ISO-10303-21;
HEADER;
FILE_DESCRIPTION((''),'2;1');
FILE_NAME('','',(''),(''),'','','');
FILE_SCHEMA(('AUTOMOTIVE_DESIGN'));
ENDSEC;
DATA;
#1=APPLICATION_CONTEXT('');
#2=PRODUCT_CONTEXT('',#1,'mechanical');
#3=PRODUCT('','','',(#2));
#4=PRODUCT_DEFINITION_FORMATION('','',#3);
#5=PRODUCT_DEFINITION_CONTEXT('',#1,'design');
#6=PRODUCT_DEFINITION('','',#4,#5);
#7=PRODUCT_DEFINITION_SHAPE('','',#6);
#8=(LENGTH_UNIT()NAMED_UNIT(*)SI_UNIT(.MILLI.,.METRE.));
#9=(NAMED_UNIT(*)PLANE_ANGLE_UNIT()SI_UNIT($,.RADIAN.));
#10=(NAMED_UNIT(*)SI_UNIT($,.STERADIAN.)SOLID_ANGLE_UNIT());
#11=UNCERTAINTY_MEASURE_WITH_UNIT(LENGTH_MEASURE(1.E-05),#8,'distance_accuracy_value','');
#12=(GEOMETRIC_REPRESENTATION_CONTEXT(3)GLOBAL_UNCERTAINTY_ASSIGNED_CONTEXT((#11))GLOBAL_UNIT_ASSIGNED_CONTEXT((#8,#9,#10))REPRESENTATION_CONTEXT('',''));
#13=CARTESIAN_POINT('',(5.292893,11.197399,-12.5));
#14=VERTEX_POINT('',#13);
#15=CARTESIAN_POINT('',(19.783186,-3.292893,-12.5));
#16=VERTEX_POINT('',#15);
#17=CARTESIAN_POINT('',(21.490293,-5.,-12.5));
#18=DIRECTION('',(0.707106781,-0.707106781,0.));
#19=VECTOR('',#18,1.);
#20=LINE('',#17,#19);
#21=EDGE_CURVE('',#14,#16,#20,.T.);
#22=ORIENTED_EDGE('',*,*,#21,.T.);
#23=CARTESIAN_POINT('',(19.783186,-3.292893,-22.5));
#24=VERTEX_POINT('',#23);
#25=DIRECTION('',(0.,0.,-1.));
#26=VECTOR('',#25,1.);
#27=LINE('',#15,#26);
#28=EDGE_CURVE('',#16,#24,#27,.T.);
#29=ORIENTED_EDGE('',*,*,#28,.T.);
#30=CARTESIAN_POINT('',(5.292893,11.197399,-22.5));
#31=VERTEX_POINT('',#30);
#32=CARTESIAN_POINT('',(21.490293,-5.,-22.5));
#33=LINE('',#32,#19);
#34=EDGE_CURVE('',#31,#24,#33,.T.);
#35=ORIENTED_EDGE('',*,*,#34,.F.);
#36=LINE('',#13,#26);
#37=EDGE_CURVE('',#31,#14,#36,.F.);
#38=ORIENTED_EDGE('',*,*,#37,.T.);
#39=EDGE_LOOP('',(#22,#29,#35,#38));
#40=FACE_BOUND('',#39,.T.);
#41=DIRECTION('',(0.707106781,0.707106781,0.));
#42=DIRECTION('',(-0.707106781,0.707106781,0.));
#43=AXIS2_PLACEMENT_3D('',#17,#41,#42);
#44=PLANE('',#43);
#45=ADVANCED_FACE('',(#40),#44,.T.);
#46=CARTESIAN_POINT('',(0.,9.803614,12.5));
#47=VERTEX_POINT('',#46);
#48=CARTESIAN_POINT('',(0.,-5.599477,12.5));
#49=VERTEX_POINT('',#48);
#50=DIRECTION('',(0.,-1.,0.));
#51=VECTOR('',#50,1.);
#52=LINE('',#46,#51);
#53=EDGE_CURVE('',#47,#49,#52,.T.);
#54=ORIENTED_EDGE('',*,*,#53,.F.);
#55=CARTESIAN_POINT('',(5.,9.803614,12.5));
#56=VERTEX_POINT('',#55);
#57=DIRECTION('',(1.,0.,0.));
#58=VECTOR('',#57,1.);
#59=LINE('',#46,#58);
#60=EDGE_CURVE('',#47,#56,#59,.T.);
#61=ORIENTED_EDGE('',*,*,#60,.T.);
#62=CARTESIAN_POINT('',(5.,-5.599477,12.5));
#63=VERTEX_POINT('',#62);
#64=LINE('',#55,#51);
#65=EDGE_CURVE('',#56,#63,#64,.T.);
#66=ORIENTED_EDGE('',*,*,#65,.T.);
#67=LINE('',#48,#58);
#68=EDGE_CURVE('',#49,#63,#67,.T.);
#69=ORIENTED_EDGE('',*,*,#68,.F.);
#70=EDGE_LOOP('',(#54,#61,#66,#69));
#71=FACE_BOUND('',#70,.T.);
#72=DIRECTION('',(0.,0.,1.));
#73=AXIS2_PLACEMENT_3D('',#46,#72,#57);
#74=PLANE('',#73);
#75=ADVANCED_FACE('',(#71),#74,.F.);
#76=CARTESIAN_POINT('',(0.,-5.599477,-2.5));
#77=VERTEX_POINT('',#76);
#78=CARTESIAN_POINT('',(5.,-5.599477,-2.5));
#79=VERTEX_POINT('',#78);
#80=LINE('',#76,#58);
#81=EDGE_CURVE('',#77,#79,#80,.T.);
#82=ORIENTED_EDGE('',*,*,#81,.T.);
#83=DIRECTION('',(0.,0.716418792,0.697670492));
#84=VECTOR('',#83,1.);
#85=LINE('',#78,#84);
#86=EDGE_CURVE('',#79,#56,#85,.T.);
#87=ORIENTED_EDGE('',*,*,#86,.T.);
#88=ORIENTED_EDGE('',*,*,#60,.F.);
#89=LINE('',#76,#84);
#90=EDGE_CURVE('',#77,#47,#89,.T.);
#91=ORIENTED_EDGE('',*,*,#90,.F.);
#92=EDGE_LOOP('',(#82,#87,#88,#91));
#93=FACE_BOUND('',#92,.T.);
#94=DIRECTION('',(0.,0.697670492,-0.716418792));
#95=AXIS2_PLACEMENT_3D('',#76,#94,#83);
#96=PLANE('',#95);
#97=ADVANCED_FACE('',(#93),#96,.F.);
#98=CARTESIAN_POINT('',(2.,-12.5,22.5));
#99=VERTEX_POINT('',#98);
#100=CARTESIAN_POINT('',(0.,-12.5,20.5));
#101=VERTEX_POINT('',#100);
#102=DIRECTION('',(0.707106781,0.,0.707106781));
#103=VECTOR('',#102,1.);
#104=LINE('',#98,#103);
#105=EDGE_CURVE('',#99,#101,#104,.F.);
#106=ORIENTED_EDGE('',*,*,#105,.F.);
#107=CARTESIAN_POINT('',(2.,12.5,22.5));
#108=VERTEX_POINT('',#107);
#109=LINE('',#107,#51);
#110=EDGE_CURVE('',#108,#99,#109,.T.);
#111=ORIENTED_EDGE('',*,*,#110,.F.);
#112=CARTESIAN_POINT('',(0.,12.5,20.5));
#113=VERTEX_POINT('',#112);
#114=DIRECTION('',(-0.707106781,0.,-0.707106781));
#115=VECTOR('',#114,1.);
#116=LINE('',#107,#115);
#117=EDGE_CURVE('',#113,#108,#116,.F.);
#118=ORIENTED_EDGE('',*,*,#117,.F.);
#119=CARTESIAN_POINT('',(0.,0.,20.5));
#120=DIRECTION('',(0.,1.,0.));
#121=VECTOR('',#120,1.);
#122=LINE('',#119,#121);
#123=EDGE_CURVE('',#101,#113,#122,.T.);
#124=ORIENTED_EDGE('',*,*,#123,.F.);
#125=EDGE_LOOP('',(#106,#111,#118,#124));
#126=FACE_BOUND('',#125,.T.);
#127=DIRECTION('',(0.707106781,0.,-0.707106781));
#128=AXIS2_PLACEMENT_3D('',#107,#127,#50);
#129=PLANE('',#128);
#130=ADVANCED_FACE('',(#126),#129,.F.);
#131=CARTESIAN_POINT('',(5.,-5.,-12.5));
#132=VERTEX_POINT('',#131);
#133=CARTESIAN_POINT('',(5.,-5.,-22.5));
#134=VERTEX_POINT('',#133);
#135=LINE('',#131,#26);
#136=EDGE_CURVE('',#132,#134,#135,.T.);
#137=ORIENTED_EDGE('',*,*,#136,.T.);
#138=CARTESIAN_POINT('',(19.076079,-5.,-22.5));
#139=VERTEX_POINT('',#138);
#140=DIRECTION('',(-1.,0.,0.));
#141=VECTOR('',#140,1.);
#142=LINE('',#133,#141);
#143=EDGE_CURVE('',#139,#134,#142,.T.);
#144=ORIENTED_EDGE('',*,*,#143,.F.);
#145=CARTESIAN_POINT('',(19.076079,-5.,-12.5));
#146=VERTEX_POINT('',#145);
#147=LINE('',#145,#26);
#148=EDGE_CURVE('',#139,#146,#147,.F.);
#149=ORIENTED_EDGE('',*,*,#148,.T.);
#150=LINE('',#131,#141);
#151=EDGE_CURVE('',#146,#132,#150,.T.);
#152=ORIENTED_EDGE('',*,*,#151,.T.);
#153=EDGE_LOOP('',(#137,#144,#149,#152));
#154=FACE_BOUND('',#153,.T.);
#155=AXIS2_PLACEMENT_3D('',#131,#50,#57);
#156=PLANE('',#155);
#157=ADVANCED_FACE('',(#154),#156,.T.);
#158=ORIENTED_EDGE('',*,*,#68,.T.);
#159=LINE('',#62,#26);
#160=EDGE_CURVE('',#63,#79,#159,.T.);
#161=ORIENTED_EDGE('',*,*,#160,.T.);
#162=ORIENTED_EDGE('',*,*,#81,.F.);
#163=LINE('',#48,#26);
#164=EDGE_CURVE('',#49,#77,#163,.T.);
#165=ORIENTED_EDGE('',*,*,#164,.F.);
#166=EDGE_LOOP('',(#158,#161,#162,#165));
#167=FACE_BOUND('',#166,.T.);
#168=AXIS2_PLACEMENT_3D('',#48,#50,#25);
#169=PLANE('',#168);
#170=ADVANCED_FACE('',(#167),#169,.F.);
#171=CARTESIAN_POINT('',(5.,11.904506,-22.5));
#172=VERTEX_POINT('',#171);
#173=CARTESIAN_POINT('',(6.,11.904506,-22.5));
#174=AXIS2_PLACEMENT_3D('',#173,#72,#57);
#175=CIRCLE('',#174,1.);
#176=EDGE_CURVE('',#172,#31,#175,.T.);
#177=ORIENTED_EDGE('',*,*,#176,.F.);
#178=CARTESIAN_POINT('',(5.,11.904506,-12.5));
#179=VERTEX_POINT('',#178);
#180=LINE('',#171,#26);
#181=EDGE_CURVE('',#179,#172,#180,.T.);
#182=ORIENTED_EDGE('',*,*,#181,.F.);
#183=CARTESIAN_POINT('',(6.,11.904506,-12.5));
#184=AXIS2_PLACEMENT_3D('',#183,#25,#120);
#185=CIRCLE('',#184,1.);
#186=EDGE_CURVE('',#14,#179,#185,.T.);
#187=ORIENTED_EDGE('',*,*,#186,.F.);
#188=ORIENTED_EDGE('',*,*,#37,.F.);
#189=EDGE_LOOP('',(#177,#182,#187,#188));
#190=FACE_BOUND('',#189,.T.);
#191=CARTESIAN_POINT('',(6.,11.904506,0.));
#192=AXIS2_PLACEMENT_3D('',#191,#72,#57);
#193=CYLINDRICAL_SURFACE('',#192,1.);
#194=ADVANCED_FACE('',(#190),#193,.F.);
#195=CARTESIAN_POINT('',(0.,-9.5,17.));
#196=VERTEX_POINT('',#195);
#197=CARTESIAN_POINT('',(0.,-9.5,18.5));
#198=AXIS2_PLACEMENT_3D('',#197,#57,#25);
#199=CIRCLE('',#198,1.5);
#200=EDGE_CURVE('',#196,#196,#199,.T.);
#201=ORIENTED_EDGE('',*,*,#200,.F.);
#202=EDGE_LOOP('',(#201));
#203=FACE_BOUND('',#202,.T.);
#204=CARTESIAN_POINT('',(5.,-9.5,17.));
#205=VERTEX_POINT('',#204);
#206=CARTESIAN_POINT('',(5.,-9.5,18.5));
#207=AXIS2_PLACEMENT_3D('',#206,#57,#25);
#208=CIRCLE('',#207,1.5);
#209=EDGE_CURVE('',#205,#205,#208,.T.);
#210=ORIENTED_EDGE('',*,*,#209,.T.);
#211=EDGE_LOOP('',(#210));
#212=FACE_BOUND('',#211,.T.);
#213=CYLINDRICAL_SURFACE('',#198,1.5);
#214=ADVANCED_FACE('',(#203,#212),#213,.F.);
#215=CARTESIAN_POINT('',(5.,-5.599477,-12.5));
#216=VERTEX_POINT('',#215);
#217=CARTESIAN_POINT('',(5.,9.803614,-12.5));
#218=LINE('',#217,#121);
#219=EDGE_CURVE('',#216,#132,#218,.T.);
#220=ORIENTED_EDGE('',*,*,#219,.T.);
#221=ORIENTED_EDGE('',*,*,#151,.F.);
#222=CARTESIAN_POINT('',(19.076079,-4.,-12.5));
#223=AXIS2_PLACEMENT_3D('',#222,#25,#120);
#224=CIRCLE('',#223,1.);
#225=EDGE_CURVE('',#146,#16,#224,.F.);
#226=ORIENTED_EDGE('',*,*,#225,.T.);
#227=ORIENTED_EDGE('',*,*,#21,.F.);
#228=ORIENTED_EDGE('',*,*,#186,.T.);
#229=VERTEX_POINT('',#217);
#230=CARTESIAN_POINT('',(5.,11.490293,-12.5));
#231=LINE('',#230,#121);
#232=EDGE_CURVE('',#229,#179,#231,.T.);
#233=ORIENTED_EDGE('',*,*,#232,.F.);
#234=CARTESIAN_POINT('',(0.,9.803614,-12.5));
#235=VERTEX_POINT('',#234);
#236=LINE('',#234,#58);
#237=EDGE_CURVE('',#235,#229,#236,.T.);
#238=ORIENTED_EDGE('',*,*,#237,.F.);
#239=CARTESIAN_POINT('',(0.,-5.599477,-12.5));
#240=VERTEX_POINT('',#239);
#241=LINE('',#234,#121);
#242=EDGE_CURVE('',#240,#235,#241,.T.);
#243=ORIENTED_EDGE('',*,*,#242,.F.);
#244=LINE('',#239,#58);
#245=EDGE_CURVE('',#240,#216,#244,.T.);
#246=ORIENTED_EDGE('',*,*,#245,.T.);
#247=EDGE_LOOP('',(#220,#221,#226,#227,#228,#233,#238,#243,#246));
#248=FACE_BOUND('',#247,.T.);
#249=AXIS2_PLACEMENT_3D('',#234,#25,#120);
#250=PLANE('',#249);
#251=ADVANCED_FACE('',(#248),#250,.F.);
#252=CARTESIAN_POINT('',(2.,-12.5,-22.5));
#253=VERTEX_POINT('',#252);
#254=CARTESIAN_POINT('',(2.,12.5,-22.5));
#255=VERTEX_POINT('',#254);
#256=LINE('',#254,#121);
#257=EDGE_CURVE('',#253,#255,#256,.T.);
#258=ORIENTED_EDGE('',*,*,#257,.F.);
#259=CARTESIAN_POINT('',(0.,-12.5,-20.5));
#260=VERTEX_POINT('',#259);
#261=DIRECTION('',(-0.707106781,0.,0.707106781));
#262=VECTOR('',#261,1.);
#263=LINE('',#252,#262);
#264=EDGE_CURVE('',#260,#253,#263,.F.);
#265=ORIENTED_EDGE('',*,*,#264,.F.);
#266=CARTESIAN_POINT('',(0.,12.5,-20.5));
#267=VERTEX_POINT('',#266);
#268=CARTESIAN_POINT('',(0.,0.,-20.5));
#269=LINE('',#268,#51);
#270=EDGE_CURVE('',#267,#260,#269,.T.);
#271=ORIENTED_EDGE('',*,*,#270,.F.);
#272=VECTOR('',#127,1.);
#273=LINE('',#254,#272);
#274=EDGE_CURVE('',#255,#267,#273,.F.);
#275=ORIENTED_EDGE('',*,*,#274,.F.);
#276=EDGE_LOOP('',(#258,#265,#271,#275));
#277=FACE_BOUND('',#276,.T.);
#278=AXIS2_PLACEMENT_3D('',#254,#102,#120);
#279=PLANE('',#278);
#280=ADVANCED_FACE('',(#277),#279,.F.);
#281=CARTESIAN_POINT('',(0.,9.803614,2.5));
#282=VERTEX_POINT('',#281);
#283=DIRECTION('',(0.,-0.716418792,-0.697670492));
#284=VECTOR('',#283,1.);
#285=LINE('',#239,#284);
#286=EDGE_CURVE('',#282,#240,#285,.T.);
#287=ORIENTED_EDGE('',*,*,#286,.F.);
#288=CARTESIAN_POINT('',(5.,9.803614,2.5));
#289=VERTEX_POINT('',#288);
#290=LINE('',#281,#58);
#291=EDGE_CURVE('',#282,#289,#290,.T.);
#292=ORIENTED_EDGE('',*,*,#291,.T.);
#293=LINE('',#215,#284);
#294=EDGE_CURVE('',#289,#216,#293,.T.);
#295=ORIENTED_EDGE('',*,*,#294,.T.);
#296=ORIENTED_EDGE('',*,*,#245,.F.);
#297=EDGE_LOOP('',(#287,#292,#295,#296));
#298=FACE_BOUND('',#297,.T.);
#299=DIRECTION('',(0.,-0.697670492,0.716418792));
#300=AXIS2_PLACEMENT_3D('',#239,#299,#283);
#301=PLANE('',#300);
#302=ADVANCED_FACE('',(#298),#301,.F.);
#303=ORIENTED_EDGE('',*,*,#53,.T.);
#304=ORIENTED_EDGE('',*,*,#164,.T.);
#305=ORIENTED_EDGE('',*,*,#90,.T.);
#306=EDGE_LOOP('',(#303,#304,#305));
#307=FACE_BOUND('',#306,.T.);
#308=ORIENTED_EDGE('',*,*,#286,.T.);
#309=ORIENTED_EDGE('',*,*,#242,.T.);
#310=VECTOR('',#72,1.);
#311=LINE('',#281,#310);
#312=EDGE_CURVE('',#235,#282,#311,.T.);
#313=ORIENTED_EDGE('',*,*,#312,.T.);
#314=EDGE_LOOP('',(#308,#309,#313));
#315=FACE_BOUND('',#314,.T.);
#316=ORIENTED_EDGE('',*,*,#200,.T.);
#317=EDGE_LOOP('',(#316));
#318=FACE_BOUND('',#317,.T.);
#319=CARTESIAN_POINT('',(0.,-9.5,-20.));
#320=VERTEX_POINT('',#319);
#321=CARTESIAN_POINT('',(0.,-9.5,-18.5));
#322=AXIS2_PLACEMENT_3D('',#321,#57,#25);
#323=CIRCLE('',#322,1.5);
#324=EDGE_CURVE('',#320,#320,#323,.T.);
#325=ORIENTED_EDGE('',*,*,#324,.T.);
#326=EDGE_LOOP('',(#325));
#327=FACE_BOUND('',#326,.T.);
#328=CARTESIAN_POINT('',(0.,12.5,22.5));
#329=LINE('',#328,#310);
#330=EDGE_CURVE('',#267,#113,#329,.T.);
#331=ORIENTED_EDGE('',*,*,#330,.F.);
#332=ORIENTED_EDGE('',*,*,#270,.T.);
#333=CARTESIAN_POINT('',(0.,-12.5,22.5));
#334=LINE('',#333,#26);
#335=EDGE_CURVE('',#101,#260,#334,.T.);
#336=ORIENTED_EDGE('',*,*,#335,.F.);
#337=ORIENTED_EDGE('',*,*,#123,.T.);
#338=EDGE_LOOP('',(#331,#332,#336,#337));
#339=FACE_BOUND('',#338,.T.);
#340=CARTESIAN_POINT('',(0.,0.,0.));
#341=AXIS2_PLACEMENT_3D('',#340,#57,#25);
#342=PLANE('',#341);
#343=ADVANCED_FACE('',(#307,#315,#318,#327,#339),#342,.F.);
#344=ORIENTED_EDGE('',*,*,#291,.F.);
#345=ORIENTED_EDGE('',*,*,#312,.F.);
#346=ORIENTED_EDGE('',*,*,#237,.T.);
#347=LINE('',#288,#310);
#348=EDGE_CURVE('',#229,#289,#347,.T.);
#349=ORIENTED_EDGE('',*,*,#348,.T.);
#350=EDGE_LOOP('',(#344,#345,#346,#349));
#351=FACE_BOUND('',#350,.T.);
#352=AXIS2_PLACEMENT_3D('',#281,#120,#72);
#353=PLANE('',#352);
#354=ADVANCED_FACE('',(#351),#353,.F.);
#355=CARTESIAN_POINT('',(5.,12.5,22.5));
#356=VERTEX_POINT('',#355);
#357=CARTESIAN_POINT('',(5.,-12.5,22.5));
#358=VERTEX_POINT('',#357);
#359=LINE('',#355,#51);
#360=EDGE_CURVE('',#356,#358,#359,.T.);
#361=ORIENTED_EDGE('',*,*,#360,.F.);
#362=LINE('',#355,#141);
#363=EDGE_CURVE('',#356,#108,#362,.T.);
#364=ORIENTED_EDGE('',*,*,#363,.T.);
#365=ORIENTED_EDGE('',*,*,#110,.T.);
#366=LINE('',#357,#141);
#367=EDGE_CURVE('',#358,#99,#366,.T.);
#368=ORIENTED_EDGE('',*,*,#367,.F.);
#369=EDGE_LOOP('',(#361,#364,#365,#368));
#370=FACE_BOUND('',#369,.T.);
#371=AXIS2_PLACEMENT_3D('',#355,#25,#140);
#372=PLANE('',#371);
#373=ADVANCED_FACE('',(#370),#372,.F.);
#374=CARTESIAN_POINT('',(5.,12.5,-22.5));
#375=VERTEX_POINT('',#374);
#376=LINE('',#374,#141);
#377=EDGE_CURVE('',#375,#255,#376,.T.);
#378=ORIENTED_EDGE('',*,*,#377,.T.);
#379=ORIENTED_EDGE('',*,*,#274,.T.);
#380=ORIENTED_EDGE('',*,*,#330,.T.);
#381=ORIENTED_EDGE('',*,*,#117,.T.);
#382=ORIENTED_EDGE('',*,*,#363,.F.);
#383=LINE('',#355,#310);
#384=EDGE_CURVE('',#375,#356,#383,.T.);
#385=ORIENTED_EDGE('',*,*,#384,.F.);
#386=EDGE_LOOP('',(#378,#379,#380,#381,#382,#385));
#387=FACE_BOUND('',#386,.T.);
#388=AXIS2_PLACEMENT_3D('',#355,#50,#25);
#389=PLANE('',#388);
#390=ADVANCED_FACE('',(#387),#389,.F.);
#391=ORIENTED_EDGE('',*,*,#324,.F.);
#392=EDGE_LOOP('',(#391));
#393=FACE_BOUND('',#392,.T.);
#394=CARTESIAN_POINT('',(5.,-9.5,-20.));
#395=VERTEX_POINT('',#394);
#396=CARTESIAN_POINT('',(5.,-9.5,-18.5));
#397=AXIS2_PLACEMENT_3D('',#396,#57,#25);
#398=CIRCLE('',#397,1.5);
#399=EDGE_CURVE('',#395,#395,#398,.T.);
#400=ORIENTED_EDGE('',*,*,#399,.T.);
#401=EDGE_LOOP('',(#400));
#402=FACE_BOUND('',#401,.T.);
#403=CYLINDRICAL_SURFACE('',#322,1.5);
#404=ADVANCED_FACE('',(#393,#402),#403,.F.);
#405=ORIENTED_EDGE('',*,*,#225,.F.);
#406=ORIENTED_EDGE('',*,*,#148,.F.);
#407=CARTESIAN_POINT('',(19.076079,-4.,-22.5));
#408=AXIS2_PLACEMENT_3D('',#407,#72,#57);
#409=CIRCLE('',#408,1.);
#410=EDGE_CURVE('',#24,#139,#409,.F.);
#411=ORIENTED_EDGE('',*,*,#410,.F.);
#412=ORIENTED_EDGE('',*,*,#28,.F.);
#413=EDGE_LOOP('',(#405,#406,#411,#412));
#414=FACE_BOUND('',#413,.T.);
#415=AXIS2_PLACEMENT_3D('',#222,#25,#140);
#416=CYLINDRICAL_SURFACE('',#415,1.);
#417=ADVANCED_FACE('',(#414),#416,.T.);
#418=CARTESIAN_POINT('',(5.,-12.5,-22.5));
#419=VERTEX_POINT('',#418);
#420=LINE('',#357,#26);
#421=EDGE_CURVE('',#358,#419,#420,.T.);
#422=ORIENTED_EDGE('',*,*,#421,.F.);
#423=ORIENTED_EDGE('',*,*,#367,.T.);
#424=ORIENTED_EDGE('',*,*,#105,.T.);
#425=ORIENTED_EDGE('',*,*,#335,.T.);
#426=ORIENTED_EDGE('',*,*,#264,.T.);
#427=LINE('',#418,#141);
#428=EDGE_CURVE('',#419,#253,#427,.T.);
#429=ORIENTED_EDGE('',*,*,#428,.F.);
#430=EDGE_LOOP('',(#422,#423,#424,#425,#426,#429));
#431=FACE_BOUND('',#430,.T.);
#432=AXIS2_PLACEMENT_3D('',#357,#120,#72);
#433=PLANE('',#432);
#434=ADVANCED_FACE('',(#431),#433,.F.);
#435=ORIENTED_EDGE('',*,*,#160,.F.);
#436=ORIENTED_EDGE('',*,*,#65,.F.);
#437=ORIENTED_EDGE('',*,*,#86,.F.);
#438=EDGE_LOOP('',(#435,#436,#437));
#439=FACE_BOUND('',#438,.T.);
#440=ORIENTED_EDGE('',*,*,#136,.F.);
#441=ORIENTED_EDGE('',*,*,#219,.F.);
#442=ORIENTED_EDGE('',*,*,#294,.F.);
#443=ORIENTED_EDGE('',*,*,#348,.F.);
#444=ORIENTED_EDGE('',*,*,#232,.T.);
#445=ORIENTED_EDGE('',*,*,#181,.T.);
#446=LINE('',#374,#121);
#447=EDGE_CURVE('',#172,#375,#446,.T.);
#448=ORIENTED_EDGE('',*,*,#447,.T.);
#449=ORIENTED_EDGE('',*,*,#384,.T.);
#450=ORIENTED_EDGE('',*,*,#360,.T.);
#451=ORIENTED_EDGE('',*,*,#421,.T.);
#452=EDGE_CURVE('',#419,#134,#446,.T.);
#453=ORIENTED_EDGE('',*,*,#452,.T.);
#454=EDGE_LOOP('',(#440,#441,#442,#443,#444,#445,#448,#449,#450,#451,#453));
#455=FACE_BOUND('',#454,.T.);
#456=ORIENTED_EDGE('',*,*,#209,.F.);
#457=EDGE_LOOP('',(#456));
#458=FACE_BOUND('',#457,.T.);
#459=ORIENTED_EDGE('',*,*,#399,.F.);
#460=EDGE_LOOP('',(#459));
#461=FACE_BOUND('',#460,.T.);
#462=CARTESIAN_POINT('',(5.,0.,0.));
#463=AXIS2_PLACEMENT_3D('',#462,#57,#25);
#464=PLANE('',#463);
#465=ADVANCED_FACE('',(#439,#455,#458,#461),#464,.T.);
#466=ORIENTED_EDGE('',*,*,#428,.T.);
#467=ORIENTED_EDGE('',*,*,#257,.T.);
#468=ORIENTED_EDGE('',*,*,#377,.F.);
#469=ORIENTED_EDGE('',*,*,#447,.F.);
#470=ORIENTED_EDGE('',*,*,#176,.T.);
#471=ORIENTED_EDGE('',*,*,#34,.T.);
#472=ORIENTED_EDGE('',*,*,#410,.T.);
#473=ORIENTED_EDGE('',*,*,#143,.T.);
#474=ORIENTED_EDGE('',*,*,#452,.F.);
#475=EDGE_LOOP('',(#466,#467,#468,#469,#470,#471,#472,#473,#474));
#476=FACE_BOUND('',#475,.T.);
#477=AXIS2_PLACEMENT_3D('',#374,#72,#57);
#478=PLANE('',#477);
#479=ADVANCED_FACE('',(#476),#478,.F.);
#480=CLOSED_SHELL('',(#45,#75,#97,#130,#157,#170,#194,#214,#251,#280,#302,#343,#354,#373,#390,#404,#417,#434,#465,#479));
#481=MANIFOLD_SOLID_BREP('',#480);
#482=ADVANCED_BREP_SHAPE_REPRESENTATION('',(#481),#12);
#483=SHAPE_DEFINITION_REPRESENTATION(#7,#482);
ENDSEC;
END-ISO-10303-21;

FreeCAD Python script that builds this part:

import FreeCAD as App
import Part
import Sketcher
from FreeCAD import Vector


def edges_at(feature, points):
    """Names of the edges that pass closest to the given points."""
    edges = feature.Shape.Edges
    near = lambda p: min(range(len(edges)), key=lambda i: edges[i].distToShape(Part.Vertex(*p))[0])
    return sorted({f"Edge{near(p) + 1}" for p in points})


def add_polygon(sketch, points):
    """Adds a closed chain of lines whose ends are joined by coincident constraints."""
    first, n = sketch.GeometryCount, len(points)
    for a, b in zip(points, points[1:] + points[:1]):
        sketch.addGeometry(Part.LineSegment(App.Vector(*a, 0), App.Vector(*b, 0)), False)
    for i in range(n):
        sketch.addConstraint(Sketcher.Constraint("Coincident", first + i, 2, first + (i + 1) % n, 1))

doc = App.newDocument("Part")
body = doc.addObject("PartDesign::Body", "Body")

sketch1 = body.newObject("Sketcher::SketchObject", "Sketch")
sketch1.AttachmentSupport = (doc.getObject("YZ_Plane"), [""])
sketch1.MapMode = "FlatFace"
add_polygon(sketch1, [(12, 22), (-12, 22), (-12, -22), (12, -22)])
sketch1.addConstraint(Sketcher.Constraint("Horizontal", 0))
sketch1.addConstraint(Sketcher.Constraint("Vertical", 1))
sketch1.addConstraint(Sketcher.Constraint("Horizontal", 2))
sketch1.addConstraint(Sketcher.Constraint("Vertical", 3))
sketch1.addConstraint(Sketcher.Constraint("Symmetric", 0, 2, 2, 2, -1, 1))
sketch1.addConstraint(Sketcher.Constraint("DistanceX", 0, 2, 0, 1, 25.0))
sketch1.addConstraint(Sketcher.Constraint("DistanceY", 1, 2, 1, 1, 45.0))
pad1 = body.newObject("PartDesign::Pad", "Pad")
pad1.Profile = sketch1
pad1.Length = 5

sketch2 = body.newObject("Sketcher::SketchObject", "Sketch001")
sketch2.AttachmentSupport = (doc.getObject("YZ_Plane"), [""])
sketch2.MapMode = "FlatFace"
sketch2.AttachmentOffset = App.Placement(Vector(0, 0, 5), App.Rotation())
sketch2.addGeometry(Part.Circle(Vector(-9.5, 18.5, 0), Vector(0, 0, 1), 1.5), False)
sketch2.addGeometry(Part.Circle(Vector(-9.5, -18.5, 0), Vector(0, 0, 1), 1.5), False)
sketch2.addConstraint(Sketcher.Constraint("Equal", 0, 1))
sketch2.addConstraint(Sketcher.Constraint("Symmetric", 0, 3, 1, 3, -1))
sketch2.addConstraint(Sketcher.Constraint("Diameter", 0, 3.0))
sketch2.addConstraint(Sketcher.Constraint("DistanceY", 1, 3, 0, 3, 37.0))
sketch2.addConstraint(Sketcher.Constraint("DistanceX", 0, 3, -1, 1, 9.5))
pocket1 = body.newObject("PartDesign::Pocket", "Pocket")
pocket1.Profile = sketch2
pocket1.Type = "ThroughAll"

sketch3 = body.newObject("Sketcher::SketchObject", "Sketch002")
sketch3.AttachmentSupport = (doc.getObject("YZ_Plane"), [""])
sketch3.MapMode = "FlatFace"
sketch3.AttachmentOffset = App.Placement(Vector(0, 0, 5), App.Rotation())
add_polygon(sketch3, [(10, 12), (-6, 12), (-6, -2)])
add_polygon(sketch3, [(10, -12), (10, 2), (-6, -12)])
sketch3.addConstraint(Sketcher.Constraint("Horizontal", 0))
sketch3.addConstraint(Sketcher.Constraint("Vertical", 1))
sketch3.addConstraint(Sketcher.Constraint("Vertical", 3))
sketch3.addConstraint(Sketcher.Constraint("Horizontal", 5))
sketch3.addConstraint(Sketcher.Constraint("Symmetric", 0, 2, 4, 2, -1))
sketch3.addConstraint(Sketcher.Constraint("Parallel", 2, 4))
sketch3.addConstraint(Sketcher.Constraint("Vertical", 2, 2, 3, 2))
sketch3.addConstraint(Sketcher.Constraint("DistanceY", 1, 2, 1, 1, 15.0))
sketch3.addConstraint(Sketcher.Constraint("DistanceY", 3, 2, 2, 2, 10.0))
sketch3.addConstraint(Sketcher.Constraint("DistanceX", 0, 2, 0, 1, 15.403091))
sketch3.addConstraint(Sketcher.Constraint("DistanceX", 0, 2, -1, 1, 5.599477))
pocket2 = body.newObject("PartDesign::Pocket", "Pocket001")
pocket2.Profile = sketch3
pocket2.Type = "ThroughAll"
doc.recompute()

chamfer = body.newObject("PartDesign::Chamfer", "Chamfer")
chamfer.Base = (pocket2, edges_at(pocket2, [(0, 0, 22.5), (0, 0, -22.5)]))
chamfer.Size = 2

sketch4 = body.newObject("Sketcher::SketchObject", "Sketch003")
sketch4.AttachmentSupport = (doc.getObject("XY_Plane"), [""])
sketch4.MapMode = "FlatFace"
sketch4.AttachmentOffset = App.Placement(Vector(0, 0, -12.5), App.Rotation())
add_polygon(sketch4, [(21, -5), (5, -5), (5, 11)])
sketch4.addConstraint(Sketcher.Constraint("Horizontal", 0))
sketch4.addConstraint(Sketcher.Constraint("Vertical", 1))
sketch4.addConstraint(Sketcher.Constraint("Equal", 0, 1))
sketch4.addConstraint(Sketcher.Constraint("DistanceX", -1, 1, 0, 2, 5.0))
sketch4.addConstraint(Sketcher.Constraint("DistanceY", 0, 2, -1, 1, 5.0))
sketch4.addConstraint(Sketcher.Constraint("DistanceX", 0, 2, 0, 1, 16.490293))
pad2 = body.newObject("PartDesign::Pad", "Pad001")
pad2.Profile = sketch4
pad2.Length = 10
pad2.Reversed = True
doc.recompute()

fillet = body.newObject("PartDesign::Fillet", "Fillet")
fillet.Base = (pad2, edges_at(pad2, [(5, 11.49, -17.5), (21.49, -5, -17.5)]))
fillet.Radius = 1

doc.recompute()
